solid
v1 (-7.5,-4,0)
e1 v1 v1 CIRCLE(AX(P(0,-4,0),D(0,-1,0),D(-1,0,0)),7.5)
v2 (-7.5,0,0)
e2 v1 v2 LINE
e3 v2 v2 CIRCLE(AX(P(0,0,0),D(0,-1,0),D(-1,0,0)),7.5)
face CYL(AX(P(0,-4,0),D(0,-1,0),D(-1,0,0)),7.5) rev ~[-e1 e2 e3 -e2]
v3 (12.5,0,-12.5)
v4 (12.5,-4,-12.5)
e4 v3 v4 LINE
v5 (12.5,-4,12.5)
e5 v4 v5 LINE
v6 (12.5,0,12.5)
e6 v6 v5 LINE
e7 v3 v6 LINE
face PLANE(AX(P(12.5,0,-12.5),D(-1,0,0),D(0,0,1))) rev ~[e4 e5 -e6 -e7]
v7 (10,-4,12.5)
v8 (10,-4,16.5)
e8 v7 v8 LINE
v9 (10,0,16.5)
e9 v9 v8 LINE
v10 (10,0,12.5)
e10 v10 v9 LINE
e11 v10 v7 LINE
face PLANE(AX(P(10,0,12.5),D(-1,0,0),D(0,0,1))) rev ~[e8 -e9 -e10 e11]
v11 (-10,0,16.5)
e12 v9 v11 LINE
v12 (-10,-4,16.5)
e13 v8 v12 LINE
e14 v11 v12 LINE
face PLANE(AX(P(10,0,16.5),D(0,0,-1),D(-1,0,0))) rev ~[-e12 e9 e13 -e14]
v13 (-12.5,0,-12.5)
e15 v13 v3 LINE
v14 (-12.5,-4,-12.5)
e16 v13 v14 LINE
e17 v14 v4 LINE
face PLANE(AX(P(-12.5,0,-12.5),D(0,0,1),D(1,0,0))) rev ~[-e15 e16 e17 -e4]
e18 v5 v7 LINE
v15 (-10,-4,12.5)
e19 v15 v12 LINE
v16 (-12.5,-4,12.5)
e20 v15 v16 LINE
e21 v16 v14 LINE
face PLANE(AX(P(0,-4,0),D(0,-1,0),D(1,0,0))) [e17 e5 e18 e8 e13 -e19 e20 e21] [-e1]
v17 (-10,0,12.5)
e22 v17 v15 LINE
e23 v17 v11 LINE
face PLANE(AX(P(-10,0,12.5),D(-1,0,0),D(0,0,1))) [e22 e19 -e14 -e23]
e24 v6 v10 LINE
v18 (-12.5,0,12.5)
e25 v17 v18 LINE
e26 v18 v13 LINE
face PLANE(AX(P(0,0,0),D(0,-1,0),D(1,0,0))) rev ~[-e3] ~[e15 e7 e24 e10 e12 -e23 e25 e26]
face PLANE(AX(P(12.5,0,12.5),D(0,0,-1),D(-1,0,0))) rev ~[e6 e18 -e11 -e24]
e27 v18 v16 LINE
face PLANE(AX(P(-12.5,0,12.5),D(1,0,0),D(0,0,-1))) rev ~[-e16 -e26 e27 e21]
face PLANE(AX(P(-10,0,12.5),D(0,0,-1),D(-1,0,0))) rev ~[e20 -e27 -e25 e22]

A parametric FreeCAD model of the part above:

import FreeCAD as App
import Part
import Sketcher
Q = App.Units.Quantity

doc = App.newDocument("Part")
params = doc.addObject("Spreadsheet::Sheet", "Params")
for row, (alias, value) in enumerate([
    ("sketch1_width", "25 mm"),
    ("sketch1_width2", "20 mm"),
    ("sketch1_height", "4 mm"),
    ("pad1_length", "4 mm"),
    ("sketch2_diameter", "15 mm"),
    ("pocket1_length", "25 mm"),
], start=1):
    params.set(f"A{row}", alias)
    params.set(f"B{row}", "=" + value)
    params.setAlias(f"B{row}", alias)

body = doc.addObject("PartDesign::Body", "Body")

sketch1 = body.newObject("Sketcher::SketchObject", "Sketch")
sketch1.AttachmentSupport = (doc.getObject("XZ_Plane"), [""])
sketch1.MapMode = "FlatFace"
sketch1.addGeometry([
    Part.LineSegment(App.Vector(-12.5, 12.5, 0), App.Vector(-12.5, -12.5, 0)),
    Part.LineSegment(App.Vector(-12.5, -12.5, 0), App.Vector(12.5, -12.5, 0)),
    Part.LineSegment(App.Vector(12.5, -12.5, 0), App.Vector(12.5, 12.5, 0)),
    Part.LineSegment(App.Vector(12.5, 12.5, 0), App.Vector(10, 12.5, 0)),
    Part.LineSegment(App.Vector(10, 12.5, 0), App.Vector(10, 16.5, 0)),
    Part.LineSegment(App.Vector(10, 16.5, 0), App.Vector(-10, 16.5, 0)),
    Part.LineSegment(App.Vector(-10, 16.5, 0), App.Vector(-10, 12.5, 0)),
    Part.LineSegment(App.Vector(-10, 12.5, 0), App.Vector(-12.5, 12.5, 0)),
], False)
sketch1.addConstraint([
    Sketcher.Constraint("Coincident", 0, 2, 1, 1),
    Sketcher.Constraint("Coincident", 1, 2, 2, 1),
    Sketcher.Constraint("Coincident", 2, 2, 3, 1),
    Sketcher.Constraint("Coincident", 3, 2, 4, 1),
    Sketcher.Constraint("Coincident", 4, 2, 5, 1),
    Sketcher.Constraint("Coincident", 5, 2, 6, 1),
    Sketcher.Constraint("Coincident", 6, 2, 7, 1),
    Sketcher.Constraint("Coincident", 7, 2, 0, 1),
    Sketcher.Constraint("Vertical", 0),
    Sketcher.Constraint("Horizontal", 1),
    Sketcher.Constraint("Vertical", 2),
    Sketcher.Constraint("Horizontal", 3),
    Sketcher.Constraint("Vertical", 4),
    Sketcher.Constraint("Horizontal", 5),
    Sketcher.Constraint("Vertical", 6),
    Sketcher.Constraint("Horizontal", 7),
    Sketcher.Constraint("Symmetric", 0, 2, 2, 2, -1, 1),
    Sketcher.Constraint("Symmetric", 3, 2, 6, 2, -2),
    Sketcher.Constraint("Equal", 1, 0),
    Sketcher.Constraint("DistanceX", 1, 1, 1, 2, Q("25 mm")),
    Sketcher.Constraint("DistanceX", 5, 2, 5, 1, Q("20 mm")),
    Sketcher.Constraint("DistanceY", 4, 1, 4, 2, Q("4 mm")),
])
sketch1.setExpression("Constraints[19]", "Params.sketch1_width")
sketch1.setExpression("Constraints[20]", "Params.sketch1_width2")
sketch1.setExpression("Constraints[21]", "Params.sketch1_height")
pad1 = body.newObject("PartDesign::Pad", "Pad")
pad1.Profile = sketch1
pad1.setExpression("Length", "Params.pad1_length")

sketch2 = body.newObject("Sketcher::SketchObject", "Sketch001")
sketch2.AttachmentSupport = (doc.getObject("XZ_Plane"), [""])
sketch2.MapMode = "FlatFace"
sketch2.AttachmentOffset = App.Placement(App.Vector(0, 0, 4), App.Rotation())
sketch2.addGeometry(Part.Circle(App.Vector(0, 0, 0), App.Vector(0, 0, 1), 8), False)
sketch2.addConstraint([
    Sketcher.Constraint("Coincident", 0, 3, -1, 1),
    Sketcher.Constraint("Diameter", 0, Q("15 mm")),
])
sketch2.setExpression("Constraints[1]", "Params.sketch2_diameter")
pocket1 = body.newObject("PartDesign::Pocket", "Pocket")
pocket1.Profile = sketch2
pocket1.setExpression("Length", "Params.pocket1_length")

doc.recompute()
